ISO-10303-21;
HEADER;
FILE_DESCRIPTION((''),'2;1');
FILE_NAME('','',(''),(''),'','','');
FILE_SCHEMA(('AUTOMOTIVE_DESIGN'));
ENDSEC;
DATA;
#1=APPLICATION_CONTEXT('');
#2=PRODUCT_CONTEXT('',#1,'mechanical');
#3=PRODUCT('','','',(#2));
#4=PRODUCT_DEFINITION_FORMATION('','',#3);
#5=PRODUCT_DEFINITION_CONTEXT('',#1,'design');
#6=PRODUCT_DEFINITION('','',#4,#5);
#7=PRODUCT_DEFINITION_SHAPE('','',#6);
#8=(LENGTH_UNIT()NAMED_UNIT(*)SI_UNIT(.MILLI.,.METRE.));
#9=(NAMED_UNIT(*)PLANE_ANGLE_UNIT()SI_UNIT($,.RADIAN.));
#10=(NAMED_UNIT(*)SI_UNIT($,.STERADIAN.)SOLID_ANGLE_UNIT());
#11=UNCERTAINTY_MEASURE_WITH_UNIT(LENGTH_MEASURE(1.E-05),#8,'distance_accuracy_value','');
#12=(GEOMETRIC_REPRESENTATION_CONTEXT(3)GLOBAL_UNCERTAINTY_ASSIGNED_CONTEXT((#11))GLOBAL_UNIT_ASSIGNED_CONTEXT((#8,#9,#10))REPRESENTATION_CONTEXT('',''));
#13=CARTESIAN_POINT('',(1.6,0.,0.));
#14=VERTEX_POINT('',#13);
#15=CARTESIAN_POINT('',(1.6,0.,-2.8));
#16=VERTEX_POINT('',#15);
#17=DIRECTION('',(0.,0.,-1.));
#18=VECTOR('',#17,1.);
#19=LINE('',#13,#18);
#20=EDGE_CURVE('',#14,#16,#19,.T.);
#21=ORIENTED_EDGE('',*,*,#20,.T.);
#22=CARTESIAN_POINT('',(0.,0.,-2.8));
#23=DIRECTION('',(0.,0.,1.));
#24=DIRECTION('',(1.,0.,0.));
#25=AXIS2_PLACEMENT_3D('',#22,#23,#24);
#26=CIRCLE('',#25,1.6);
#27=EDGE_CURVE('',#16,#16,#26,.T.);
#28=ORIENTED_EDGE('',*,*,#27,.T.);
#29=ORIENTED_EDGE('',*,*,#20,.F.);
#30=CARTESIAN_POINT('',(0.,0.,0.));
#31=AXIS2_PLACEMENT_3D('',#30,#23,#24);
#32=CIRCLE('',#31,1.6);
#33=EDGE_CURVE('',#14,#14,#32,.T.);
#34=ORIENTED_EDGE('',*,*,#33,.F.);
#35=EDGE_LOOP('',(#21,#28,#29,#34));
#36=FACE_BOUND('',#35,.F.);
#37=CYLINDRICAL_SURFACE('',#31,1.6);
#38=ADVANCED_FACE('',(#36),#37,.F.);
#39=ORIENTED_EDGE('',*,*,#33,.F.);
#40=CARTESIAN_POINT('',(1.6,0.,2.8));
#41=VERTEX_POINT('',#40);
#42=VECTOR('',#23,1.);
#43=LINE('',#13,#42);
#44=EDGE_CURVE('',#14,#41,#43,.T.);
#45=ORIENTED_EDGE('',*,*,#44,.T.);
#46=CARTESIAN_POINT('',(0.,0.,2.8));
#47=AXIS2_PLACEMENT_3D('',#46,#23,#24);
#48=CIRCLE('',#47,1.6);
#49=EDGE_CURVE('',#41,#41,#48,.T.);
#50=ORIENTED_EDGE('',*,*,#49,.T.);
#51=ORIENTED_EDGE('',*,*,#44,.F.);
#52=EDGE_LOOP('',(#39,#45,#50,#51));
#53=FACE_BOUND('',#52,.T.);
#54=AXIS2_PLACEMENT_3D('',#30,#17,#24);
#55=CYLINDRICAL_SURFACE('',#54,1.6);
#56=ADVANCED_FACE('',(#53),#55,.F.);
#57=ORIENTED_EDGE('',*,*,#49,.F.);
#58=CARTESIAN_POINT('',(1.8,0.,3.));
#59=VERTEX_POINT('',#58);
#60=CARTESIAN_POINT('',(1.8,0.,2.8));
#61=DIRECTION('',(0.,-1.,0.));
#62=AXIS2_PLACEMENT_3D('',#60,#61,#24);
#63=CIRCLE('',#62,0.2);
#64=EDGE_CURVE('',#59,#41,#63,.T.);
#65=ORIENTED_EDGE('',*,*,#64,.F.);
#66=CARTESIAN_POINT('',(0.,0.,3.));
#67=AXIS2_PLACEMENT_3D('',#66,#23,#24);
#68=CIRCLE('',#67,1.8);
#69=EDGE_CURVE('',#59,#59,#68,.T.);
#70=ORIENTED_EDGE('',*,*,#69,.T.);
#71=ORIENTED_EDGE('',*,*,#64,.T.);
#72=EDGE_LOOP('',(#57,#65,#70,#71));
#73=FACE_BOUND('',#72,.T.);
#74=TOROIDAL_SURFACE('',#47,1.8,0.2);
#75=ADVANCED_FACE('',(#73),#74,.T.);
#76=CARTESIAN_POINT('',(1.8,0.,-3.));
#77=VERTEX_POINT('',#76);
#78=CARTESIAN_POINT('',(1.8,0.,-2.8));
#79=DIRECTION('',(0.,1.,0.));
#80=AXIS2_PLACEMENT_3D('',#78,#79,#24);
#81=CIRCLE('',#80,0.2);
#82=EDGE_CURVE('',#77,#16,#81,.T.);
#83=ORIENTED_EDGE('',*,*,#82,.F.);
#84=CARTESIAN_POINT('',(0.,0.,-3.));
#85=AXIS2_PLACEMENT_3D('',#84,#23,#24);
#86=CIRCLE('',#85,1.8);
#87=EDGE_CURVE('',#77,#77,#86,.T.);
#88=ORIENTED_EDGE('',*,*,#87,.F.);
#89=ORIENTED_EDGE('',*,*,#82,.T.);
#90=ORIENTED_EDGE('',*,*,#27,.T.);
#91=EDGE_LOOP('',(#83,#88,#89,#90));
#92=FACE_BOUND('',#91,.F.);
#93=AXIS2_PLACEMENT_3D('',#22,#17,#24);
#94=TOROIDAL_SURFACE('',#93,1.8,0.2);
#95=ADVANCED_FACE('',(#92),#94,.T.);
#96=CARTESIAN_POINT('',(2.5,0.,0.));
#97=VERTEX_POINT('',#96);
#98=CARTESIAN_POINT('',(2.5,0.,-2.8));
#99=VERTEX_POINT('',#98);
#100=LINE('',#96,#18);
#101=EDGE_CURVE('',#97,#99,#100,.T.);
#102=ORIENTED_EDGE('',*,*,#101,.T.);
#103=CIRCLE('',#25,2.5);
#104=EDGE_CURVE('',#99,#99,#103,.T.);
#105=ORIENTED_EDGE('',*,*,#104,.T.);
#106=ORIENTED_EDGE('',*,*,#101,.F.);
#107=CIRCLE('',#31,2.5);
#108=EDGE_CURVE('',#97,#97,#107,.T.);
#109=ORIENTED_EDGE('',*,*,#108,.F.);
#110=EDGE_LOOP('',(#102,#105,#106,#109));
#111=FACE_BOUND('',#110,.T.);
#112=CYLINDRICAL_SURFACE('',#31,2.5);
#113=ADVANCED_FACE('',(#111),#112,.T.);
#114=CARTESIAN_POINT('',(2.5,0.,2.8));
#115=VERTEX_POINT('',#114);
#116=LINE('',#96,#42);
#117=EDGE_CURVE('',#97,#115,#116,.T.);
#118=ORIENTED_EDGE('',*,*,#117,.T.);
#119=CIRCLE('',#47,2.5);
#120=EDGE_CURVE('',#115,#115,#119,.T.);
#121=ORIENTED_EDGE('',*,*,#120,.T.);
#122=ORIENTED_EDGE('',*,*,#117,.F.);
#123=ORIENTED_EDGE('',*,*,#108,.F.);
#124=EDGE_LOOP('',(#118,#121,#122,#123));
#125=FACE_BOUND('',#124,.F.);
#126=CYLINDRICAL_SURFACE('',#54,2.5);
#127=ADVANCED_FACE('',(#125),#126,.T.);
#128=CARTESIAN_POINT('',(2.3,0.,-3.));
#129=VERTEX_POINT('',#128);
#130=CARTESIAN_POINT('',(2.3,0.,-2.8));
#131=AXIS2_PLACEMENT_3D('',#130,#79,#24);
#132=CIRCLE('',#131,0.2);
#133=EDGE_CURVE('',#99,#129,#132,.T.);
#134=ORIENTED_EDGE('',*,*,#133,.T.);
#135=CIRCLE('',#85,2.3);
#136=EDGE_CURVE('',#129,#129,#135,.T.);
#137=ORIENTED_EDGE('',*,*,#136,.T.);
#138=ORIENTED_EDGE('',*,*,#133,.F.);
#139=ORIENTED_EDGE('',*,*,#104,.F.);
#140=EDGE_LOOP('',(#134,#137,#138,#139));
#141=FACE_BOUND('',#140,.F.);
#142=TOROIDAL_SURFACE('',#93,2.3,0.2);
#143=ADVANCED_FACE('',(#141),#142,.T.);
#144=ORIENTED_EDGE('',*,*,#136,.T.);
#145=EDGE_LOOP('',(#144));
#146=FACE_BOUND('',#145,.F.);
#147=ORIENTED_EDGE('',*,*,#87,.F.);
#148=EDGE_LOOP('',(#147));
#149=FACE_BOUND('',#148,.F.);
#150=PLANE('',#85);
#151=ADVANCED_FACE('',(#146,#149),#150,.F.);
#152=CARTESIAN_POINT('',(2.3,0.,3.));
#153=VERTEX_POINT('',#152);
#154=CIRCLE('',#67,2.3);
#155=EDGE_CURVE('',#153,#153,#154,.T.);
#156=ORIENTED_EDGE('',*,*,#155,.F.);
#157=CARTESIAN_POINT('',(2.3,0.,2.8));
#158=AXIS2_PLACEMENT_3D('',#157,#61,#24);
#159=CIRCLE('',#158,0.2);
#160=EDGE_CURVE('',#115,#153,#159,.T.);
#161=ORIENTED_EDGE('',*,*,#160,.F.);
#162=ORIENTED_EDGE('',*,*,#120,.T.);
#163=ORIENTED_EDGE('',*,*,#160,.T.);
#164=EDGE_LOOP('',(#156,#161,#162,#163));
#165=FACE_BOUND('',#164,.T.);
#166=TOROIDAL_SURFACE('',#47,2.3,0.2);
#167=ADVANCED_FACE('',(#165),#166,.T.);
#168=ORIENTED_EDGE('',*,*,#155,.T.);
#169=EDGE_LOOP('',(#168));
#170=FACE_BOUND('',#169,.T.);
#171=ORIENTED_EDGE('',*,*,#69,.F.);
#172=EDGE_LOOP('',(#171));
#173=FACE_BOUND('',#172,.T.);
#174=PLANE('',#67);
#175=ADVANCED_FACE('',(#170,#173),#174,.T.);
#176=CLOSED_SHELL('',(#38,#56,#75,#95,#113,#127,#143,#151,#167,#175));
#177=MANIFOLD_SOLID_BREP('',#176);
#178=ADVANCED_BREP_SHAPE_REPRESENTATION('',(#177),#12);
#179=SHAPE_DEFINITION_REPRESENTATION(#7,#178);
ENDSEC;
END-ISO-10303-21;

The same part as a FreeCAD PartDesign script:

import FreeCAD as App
import Part
import Sketcher

V = App.Vector
Q = App.Units.Quantity


def edges_at(feature, points):
    """Names of the edges that pass closest to the given points."""
    edges = feature.Shape.Edges
    near = lambda p: min(range(len(edges)), key=lambda i: edges[i].distToShape(Part.Vertex(*p))[0])
    return sorted({f"Edge{near(p) + 1}" for p in points})

doc = App.newDocument("Part")
params = doc.addObject("Spreadsheet::Sheet", "Params")
for row, (alias, value) in enumerate([
    ("sketch1_diameter", "5 mm"),
    ("sketch1_diameter2", "3.2 mm"),
    ("pad1_length", "6 mm"),
    ("fillet_radius", "0.2 mm"),
], start=1):
    params.set(f"A{row}", alias)
    params.set(f"B{row}", "=" + value)
    params.setAlias(f"B{row}", alias)

body = doc.addObject("PartDesign::Body", "Body")

# Sketch on XY plane
sketch1 = body.newObject("Sketcher::SketchObject", "Sketch")
sketch1.AttachmentSupport = (doc.getObject("XY_Plane"), [""])
sketch1.MapMode = "FlatFace"
sketch1.addGeometry(Part.Circle(V(0, 0, 0), V(0, 0, 1), 2.5), False)
sketch1.addGeometry(Part.Circle(V(0, 0, 0), V(0, 0, 1), 1.6), False)
sketch1.addConstraint(Sketcher.Constraint("Coincident", 0, 3, -1, 1))
sketch1.addConstraint(Sketcher.Constraint("Coincident", 1, 3, -1, 1))
sketch1.addConstraint(Sketcher.Constraint("Diameter", 0, Q("5 mm")))
sketch1.addConstraint(Sketcher.Constraint("Diameter", 1, Q("3.2 mm")))
sketch1.setExpression("Constraints[2]", "Params.sketch1_diameter")
sketch1.setExpression("Constraints[3]", "Params.sketch1_diameter2")
pad1 = body.newObject("PartDesign::Pad", "Pad")
pad1.Profile = sketch1
pad1.setExpression("Length", "Params.pad1_length")
pad1.Midplane = True
doc.recompute()

fillet = body.newObject("PartDesign::Fillet", "Fillet")
fillet.Base = (pad1, edges_at(pad1, [
    (-1.6, 0, 3),
    (-2.5, 0, 3),
    (-1.6, 0, -3),
    (-2.5, 0, -3),
]))
fillet.setExpression("Radius", "Params.fillet_radius")

doc.recompute()
